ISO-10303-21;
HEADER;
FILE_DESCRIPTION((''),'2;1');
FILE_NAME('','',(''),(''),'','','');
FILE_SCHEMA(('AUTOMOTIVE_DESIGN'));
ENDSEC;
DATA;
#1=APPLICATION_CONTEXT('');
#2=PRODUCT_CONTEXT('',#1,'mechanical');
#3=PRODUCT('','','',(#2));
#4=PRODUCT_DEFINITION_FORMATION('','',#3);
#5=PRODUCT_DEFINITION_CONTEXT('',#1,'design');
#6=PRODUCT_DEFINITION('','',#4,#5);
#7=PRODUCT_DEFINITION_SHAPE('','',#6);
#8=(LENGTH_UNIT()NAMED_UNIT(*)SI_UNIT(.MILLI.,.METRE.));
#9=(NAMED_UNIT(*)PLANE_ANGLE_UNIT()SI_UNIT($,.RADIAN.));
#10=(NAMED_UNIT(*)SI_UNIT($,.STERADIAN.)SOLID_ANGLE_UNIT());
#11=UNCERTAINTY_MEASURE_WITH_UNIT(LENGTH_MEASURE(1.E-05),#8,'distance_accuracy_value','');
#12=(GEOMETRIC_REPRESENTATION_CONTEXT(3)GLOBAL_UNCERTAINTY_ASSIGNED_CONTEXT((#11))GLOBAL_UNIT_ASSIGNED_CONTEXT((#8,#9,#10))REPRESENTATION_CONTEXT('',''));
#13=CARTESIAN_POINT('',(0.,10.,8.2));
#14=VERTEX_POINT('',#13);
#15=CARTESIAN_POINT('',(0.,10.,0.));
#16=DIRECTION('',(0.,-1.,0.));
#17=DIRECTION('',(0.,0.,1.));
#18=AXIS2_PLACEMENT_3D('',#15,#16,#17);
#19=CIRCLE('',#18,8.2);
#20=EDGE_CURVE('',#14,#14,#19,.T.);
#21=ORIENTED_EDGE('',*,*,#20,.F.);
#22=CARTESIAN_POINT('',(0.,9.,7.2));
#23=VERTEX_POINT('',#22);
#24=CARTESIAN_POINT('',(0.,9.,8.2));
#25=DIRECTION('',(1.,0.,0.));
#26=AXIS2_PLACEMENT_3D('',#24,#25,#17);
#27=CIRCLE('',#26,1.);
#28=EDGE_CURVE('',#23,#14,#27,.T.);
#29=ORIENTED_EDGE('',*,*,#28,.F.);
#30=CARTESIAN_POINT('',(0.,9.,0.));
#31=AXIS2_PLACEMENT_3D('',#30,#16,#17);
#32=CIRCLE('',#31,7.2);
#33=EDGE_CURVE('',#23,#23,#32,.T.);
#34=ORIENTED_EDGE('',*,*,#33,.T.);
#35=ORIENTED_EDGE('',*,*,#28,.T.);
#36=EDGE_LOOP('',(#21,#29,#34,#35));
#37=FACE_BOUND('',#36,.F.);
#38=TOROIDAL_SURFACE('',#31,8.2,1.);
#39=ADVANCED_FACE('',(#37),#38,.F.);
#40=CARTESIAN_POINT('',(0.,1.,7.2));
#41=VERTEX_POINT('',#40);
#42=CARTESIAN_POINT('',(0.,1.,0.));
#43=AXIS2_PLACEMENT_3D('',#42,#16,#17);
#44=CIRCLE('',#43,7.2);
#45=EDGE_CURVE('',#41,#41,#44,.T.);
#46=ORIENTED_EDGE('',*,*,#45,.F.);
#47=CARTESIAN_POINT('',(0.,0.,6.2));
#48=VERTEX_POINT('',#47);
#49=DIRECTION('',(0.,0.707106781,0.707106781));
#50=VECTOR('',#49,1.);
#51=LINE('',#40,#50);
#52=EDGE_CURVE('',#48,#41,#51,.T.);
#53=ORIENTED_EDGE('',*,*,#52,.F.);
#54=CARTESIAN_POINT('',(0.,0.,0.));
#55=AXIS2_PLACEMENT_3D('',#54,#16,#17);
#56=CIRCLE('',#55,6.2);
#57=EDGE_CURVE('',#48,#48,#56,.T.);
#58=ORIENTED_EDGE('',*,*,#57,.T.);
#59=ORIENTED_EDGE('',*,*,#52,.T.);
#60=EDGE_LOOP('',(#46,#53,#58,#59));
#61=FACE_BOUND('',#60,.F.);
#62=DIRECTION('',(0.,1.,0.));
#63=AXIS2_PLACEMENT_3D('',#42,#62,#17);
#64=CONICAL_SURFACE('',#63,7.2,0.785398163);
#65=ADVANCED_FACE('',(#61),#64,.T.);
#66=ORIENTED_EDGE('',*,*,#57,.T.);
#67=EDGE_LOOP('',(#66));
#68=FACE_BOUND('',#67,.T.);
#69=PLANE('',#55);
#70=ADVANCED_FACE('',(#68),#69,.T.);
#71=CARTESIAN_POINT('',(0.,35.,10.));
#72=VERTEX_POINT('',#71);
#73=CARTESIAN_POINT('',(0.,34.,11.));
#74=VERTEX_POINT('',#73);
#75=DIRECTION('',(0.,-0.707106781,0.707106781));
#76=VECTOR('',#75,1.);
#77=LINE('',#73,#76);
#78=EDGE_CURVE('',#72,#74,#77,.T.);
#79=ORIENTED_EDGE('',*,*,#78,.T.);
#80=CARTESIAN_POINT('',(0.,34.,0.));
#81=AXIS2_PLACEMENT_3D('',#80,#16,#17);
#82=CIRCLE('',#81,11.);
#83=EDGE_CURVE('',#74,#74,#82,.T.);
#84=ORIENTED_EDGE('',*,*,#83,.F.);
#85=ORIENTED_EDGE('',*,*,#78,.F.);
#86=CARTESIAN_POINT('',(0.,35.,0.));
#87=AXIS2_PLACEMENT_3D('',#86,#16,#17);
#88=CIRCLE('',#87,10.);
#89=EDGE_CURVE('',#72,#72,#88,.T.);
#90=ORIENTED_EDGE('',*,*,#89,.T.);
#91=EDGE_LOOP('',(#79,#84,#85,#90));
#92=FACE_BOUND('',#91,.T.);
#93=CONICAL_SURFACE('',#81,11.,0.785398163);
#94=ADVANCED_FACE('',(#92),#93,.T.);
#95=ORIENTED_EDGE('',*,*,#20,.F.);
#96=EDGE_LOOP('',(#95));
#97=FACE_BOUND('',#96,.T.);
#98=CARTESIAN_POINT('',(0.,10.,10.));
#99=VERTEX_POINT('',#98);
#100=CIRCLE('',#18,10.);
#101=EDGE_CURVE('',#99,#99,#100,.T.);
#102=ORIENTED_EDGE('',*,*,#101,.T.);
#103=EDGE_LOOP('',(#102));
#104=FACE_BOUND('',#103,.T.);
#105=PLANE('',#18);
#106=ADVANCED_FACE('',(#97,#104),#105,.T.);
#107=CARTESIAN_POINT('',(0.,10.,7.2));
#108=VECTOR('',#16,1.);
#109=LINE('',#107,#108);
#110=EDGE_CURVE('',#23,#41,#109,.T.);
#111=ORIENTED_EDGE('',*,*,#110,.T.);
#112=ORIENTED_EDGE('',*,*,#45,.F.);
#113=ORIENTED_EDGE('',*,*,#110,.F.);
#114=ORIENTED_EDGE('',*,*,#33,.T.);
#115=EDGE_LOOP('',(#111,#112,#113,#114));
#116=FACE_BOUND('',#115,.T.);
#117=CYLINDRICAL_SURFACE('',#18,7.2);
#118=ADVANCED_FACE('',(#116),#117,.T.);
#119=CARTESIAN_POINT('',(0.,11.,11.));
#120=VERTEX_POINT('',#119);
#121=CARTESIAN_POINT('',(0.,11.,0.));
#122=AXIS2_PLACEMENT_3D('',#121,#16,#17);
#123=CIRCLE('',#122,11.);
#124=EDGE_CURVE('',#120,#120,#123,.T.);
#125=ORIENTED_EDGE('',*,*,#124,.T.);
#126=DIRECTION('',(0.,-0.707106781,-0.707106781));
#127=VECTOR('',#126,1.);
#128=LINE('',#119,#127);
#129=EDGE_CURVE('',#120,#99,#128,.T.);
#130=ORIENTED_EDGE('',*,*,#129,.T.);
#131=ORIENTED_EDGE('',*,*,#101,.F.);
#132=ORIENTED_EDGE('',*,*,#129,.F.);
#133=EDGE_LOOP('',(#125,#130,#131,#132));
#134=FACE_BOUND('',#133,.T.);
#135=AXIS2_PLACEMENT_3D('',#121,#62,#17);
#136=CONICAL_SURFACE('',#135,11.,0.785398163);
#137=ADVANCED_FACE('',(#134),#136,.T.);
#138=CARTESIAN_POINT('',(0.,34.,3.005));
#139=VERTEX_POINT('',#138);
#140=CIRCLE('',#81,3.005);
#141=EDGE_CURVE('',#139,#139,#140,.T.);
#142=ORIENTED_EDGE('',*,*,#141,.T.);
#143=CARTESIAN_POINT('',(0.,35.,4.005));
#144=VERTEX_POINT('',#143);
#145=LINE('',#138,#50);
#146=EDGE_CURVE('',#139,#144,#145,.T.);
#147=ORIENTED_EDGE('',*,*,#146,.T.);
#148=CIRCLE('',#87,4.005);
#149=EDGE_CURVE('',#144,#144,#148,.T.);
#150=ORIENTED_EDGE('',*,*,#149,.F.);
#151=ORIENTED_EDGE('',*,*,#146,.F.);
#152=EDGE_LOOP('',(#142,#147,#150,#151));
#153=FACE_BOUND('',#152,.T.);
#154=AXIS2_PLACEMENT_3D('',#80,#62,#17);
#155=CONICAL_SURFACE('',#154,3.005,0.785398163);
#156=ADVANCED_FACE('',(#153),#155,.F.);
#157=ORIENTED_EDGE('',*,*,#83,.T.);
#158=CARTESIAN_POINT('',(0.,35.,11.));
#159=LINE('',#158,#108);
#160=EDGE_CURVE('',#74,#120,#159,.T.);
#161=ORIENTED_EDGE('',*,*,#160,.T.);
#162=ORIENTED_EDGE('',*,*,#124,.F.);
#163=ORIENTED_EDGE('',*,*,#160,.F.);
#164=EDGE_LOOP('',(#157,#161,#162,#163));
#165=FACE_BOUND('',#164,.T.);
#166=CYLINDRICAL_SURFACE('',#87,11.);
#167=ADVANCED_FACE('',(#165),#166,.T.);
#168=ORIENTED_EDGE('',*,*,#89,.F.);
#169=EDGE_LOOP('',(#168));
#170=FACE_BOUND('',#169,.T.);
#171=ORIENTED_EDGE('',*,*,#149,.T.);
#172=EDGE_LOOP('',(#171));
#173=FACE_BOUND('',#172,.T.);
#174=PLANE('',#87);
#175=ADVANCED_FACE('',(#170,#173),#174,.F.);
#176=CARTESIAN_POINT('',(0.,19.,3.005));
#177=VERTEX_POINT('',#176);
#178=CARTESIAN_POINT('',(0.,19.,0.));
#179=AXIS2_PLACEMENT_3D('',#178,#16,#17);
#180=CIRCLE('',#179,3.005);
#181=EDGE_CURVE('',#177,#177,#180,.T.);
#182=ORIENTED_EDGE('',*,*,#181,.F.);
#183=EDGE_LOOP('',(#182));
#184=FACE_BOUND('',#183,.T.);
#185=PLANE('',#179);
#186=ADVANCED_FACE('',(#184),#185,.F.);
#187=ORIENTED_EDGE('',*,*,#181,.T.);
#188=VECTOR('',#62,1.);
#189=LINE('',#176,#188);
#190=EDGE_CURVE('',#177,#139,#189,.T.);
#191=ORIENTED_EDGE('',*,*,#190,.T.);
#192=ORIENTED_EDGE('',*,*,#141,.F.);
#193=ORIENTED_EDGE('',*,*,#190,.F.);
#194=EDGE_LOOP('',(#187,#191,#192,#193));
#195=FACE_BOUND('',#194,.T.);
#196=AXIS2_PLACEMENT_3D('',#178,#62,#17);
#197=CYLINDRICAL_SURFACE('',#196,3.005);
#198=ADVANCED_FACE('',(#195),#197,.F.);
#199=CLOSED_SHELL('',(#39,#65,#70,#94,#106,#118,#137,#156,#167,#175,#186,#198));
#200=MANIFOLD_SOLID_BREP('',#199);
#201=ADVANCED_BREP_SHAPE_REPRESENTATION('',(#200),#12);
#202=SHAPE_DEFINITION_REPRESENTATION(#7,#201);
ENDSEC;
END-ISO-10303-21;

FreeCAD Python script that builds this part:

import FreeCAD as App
import Part
import Sketcher
from FreeCAD import Vector
Q = App.Units.Quantity


def edges_at(feature, points):
    """Names of the edges that pass closest to the given points."""
    edges = feature.Shape.Edges
    near = lambda p: min(range(len(edges)), key=lambda i: edges[i].distToShape(Part.Vertex(*p))[0])
    return sorted({f"Edge{near(p) + 1}" for p in points})


def add_polygon(sketch, points):
    """Adds a closed chain of lines whose ends are joined by coincident constraints."""
    first, n = sketch.GeometryCount, len(points)
    for a, b in zip(points, points[1:] + points[:1]):
        sketch.addGeometry(Part.LineSegment(App.Vector(*a, 0), App.Vector(*b, 0)), False)
    for i in range(n):
        sketch.addConstraint(Sketcher.Constraint("Coincident", first + i, 2, first + (i + 1) % n, 1))

doc = App.newDocument("Part")
body = doc.addObject("PartDesign::Body", "Body")

# Sketch on YZ plane
sketch1 = body.newObject("Sketcher::SketchObject", "Sketch")
sketch1.AttachmentSupport = (doc.getObject("YZ_Plane"), [""])
sketch1.MapMode = "FlatFace"
add_polygon(sketch1, [(0, 7.2), (0, 0), (19, 0), (19, 3), (35, 3), (35, 11), (10, 11), (10, 7.2)])  # lines 0-7
sketch1.addConstraint([
    Sketcher.Constraint("Vertical", 0),
    Sketcher.Constraint("Horizontal", 1),
    Sketcher.Constraint("Vertical", 2),
    Sketcher.Constraint("Horizontal", 3),
    Sketcher.Constraint("Vertical", 4),
    Sketcher.Constraint("Horizontal", 5),
    Sketcher.Constraint("Vertical", 6),
    Sketcher.Constraint("Horizontal", 7),
    Sketcher.Constraint("Coincident", 0, 2, -1, 1),
    Sketcher.Constraint("DistanceX", 1, 1, 1, 2, Q("19 mm")),
    Sketcher.Constraint("DistanceX", 3, 1, 3, 2, Q("16 mm")),
    Sketcher.Constraint("DistanceX", 5, 2, 5, 1, Q("25 mm")),
    Sketcher.Constraint("DistanceY", 0, 2, 0, 1, Q("7.2 mm")),
    Sketcher.Constraint("DistanceY", 6, 2, 6, 1, Q("3.8 mm")),
    Sketcher.Constraint("DistanceY", 2, 1, 2, 2, Q("3.005 mm")),
])
revolution = body.newObject("PartDesign::Revolution", "Revolution")
revolution.Profile = sketch1
revolution.ReferenceAxis = (sketch1, ["H_Axis"])
revolution.Angle = 360
doc.recompute()

chamfer = body.newObject("PartDesign::Chamfer", "Chamfer")
chamfer.Base = (revolution, edges_at(revolution, [
    (0, 0, -7.2),
    (0, 10, -11),
    (0, 35, -11),
    (0, 35, -3.005),
]))
chamfer.Size = 1
doc.recompute()

fillet = body.newObject("PartDesign::Fillet", "Fillet")
fillet.Base = (chamfer, edges_at(chamfer, [(0, 10, -7.2)]))
fillet.Radius = 1

doc.recompute()
